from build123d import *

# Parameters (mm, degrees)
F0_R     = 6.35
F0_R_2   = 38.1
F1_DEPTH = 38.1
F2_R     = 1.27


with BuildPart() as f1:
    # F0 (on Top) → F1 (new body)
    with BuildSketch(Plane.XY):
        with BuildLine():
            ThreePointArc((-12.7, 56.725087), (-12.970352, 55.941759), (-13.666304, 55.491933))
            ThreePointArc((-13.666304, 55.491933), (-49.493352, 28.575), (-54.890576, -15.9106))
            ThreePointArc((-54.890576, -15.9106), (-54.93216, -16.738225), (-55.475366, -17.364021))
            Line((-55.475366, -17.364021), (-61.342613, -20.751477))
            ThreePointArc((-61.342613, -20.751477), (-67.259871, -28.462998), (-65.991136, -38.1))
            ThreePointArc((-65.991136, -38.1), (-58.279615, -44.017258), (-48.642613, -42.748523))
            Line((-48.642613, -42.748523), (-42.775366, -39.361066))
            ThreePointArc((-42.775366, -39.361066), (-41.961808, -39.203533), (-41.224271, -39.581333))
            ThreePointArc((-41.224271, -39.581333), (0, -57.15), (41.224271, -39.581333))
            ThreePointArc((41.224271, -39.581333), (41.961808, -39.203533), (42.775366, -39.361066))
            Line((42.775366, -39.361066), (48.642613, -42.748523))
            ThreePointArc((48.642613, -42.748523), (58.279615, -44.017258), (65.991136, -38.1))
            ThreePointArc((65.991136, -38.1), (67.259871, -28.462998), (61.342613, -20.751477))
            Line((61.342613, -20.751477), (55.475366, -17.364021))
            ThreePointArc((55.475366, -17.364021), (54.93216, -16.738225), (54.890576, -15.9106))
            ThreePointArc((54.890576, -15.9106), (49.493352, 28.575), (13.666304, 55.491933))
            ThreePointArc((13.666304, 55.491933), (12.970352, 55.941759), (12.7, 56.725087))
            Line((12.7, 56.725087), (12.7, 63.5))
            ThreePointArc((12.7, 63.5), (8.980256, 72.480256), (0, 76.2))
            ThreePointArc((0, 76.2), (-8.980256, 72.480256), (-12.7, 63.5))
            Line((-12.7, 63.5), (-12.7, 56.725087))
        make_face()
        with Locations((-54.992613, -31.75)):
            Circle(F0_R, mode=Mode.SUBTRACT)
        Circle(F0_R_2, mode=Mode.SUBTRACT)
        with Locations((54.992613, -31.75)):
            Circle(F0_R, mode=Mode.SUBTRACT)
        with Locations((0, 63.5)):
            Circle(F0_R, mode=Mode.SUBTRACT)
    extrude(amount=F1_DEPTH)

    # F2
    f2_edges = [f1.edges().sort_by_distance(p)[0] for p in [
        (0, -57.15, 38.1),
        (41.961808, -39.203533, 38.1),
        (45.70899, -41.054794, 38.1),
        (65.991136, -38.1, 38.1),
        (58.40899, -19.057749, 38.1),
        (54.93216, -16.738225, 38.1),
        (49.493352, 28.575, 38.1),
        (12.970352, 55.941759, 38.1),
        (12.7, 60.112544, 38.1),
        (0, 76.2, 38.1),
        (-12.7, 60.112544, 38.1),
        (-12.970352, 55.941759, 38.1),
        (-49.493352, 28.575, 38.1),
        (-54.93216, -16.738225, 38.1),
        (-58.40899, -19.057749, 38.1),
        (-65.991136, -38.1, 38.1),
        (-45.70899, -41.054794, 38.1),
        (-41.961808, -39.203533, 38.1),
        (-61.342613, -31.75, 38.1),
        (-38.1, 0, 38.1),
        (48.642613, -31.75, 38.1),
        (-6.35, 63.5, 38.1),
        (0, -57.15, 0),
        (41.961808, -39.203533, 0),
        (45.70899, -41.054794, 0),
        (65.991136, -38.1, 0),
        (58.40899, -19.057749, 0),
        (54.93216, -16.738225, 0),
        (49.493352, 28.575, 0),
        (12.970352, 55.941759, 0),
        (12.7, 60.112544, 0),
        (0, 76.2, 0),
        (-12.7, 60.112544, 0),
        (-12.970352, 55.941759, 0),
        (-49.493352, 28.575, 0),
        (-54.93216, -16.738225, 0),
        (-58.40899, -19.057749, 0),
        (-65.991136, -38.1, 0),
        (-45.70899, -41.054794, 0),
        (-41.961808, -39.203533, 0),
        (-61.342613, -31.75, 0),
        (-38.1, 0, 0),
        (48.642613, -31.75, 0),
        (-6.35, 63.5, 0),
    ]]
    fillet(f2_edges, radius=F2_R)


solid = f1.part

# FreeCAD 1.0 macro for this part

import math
import FreeCAD as App
import Part
import Sketcher

V = App.Vector
Q = App.Units.Quantity


def edges_at(feature, points):
    """Names of the edges that pass closest to the given points."""
    edges = feature.Shape.Edges
    near = lambda p: min(range(len(edges)), key=lambda i: edges[i].distToShape(Part.Vertex(*p))[0])
    return sorted({f"Edge{near(p) + 1}" for p in points})

doc = App.newDocument("Part")
params = doc.addObject("Spreadsheet::Sheet", "Params")
for row, (alias, value) in enumerate([
    ("sketch1_diameter", "3 in"),
    ("sketch1_diameter2", "0.5 in"),
    ("sketch1_radius", "0.5 in"),
    ("sketch1_radius2", "0.0500001 in"),
    ("sketch1_radius3", "2.25 in"),
    ("pad1_length", "1.5 in"),
    ("fillet_radius", "0.05 in"),
], start=1):
    params.set(f"A{row}", alias)
    params.set(f"B{row}", "=" + value)
    params.setAlias(f"B{row}", alias)

body = doc.addObject("PartDesign::Body", "Body")

sketch1 = body.newObject("Sketcher::SketchObject", "Sketch")
sketch1.AttachmentSupport = (doc.getObject("XY_Plane"), [""])
sketch1.MapMode = "FlatFace"
sketch1.addGeometry(Part.ArcOfCircle(Part.Circle(V(-14, 56.7, 0), V(0, 0, 1), 1.3), math.radians(-76), math.radians(0)), False)
sketch1.addGeometry(Part.ArcOfCircle(Part.Circle(V(0, 0, 0), V(0, 0, 1), 57.1), math.radians(104), math.radians(196)), False)
sketch1.addGeometry(Part.ArcOfCircle(Part.Circle(V(-56.1, -16.3, 0), V(0, 0, 1), 1.3), math.radians(-60), math.radians(16)), False)
sketch1.addGeometry(Part.LineSegment(V(-55.5, -17.4, 0), V(-61.3, -20.8, 0)), False)
sketch1.addGeometry(Part.ArcOfCircle(Part.Circle(V(-55, -31.8, 0), V(0, 0, 1), 12.7), math.radians(120), math.radians(210)), False)
sketch1.addGeometry(Part.ArcOfCircle(Part.Circle(V(-55, -31.7, 0), V(0, 0, 1), 12.7), math.radians(-150), math.radians(-60)), False)
sketch1.addGeometry(Part.LineSegment(V(-48.6, -42.7, 0), V(-42.8, -39.4, 0)), False)
sketch1.addGeometry(Part.ArcOfCircle(Part.Circle(V(-42.1, -40.5, 0), V(0, 0, 1), 1.3), math.radians(44), math.radians(120)), False)
sketch1.addGeometry(Part.ArcOfCircle(Part.Circle(V(0, 0, 0), V(0, 0, 1), 57.1), math.radians(-136), math.radians(-44)), False)
sketch1.addGeometry(Part.ArcOfCircle(Part.Circle(V(42.1, -40.5, 0), V(0, 0, 1), 1.3), math.radians(60), math.radians(136)), False)
sketch1.addGeometry(Part.LineSegment(V(42.8, -39.4, 0), V(48.6, -42.7, 0)), False)
sketch1.addGeometry(Part.ArcOfCircle(Part.Circle(V(55, -31.7, 0), V(0, 0, 1), 12.7), math.radians(-120), math.radians(-30)), False)
sketch1.addGeometry(Part.ArcOfCircle(Part.Circle(V(55, -31.8, 0), V(0, 0, 1), 12.7), math.radians(-30), math.radians(60)), False)
sketch1.addGeometry(Part.LineSegment(V(61.3, -20.8, 0), V(55.5, -17.4, 0)), False)
sketch1.addGeometry(Part.ArcOfCircle(Part.Circle(V(56.1, -16.3, 0), V(0, 0, 1), 1.3), math.radians(164), math.radians(240)), False)
sketch1.addGeometry(Part.ArcOfCircle(Part.Circle(V(0, 0, 0), V(0, 0, 1), 57.1), math.radians(-16), math.radians(76)), False)
sketch1.addGeometry(Part.ArcOfCircle(Part.Circle(V(14, 56.7, 0), V(0, 0, 1), 1.3), math.radians(-180), math.radians(-104)), False)
sketch1.addGeometry(Part.LineSegment(V(12.7, 56.7, 0), V(12.7, 63.5, 0)), False)
sketch1.addGeometry(Part.ArcOfCircle(Part.Circle(V(0, 63.5, 0), V(0, 0, 1), 12.7), math.radians(0), math.radians(90)), False)
sketch1.addGeometry(Part.ArcOfCircle(Part.Circle(V(0, 63.5, 0), V(0, 0, 1), 12.7), math.radians(90), math.radians(180)), False)
sketch1.addGeometry(Part.LineSegment(V(-12.7, 63.5, 0), V(-12.7, 56.7, 0)), False)
sketch1.addGeometry(Part.Circle(V(-55, -31.8, 0), V(0, 0, 1), 6.3), False)
sketch1.addGeometry(Part.Circle(V(0, 0, 0), V(0, 0, 1), 38.1), False)
sketch1.addGeometry(Part.Circle(V(55, -31.8, 0), V(0, 0, 1), 6.3), False)
sketch1.addGeometry(Part.Circle(V(0, 63.5, 0), V(0, 0, 1), 6.3), False)
sketch1.addConstraint(Sketcher.Constraint("Tangent", 0, 1, 1, 1))
sketch1.addConstraint(Sketcher.Constraint("Tangent", 1, 2, 2, 2))
sketch1.addConstraint(Sketcher.Constraint("Tangent", 2, 1, 3, 1))
sketch1.addConstraint(Sketcher.Constraint("Tangent", 3, 2, 4, 1))
sketch1.addConstraint(Sketcher.Constraint("Tangent", 4, 2, 5, 1))
sketch1.addConstraint(Sketcher.Constraint("Tangent", 5, 2, 6, 1))
sketch1.addConstraint(Sketcher.Constraint("Tangent", 6, 2, 7, 2))
sketch1.addConstraint(Sketcher.Constraint("Tangent", 7, 1, 8, 1))
sketch1.addConstraint(Sketcher.Constraint("Tangent", 8, 2, 9, 2))
sketch1.addConstraint(Sketcher.Constraint("Tangent", 9, 1, 10, 1))
sketch1.addConstraint(Sketcher.Constraint("Tangent", 10, 2, 11, 1))
sketch1.addConstraint(Sketcher.Constraint("Tangent", 11, 2, 12, 1))
sketch1.addConstraint(Sketcher.Constraint("Tangent", 12, 2, 13, 1))
sketch1.addConstraint(Sketcher.Constraint("Tangent", 13, 2, 14, 2))
sketch1.addConstraint(Sketcher.Constraint("Tangent", 14, 1, 15, 1))
sketch1.addConstraint(Sketcher.Constraint("Tangent", 15, 2, 16, 2))
sketch1.addConstraint(Sketcher.Constraint("Tangent", 16, 1, 17, 1))
sketch1.addConstraint(Sketcher.Constraint("Tangent", 17, 2, 18, 1))
sketch1.addConstraint(Sketcher.Constraint("Tangent", 18, 2, 19, 1))
sketch1.addConstraint(Sketcher.Constraint("Tangent", 19, 2, 20, 1))
sketch1.addConstraint(Sketcher.Constraint("Tangent", 20, 2, 0, 2))
sketch1.addConstraint(Sketcher.Constraint("Vertical", 17))
sketch1.addConstraint(Sketcher.Constraint("Vertical", 20))
sketch1.addConstraint(Sketcher.Constraint("Coincident", 1, 3, -1, 1))
sketch1.addConstraint(Sketcher.Constraint("Coincident", 8, 3, -1, 1))
sketch1.addConstraint(Sketcher.Constraint("Coincident", 15, 3, -1, 1))
sketch1.addConstraint(Sketcher.Constraint("Coincident", 22, 3, -1, 1))
sketch1.addConstraint(Sketcher.Constraint("Coincident", 21, 3, 4, 3))
sketch1.addConstraint(Sketcher.Constraint("Coincident", 23, 3, 11, 3))
sketch1.addConstraint(Sketcher.Constraint("Coincident", 24, 3, 18, 3))
sketch1.addConstraint(Sketcher.Constraint("Equal", 0, 2))
sketch1.addConstraint(Sketcher.Constraint("Equal", 4, 5))
sketch1.addConstraint(Sketcher.Constraint("Equal", 2, 7))
sketch1.addConstraint(Sketcher.Constraint("Equal", 1, 8))
sketch1.addConstraint(Sketcher.Constraint("Equal", 7, 9))
sketch1.addConstraint(Sketcher.Constraint("Equal", 5, 11))
sketch1.addConstraint(Sketcher.Constraint("Equal", 11, 12))
sketch1.addConstraint(Sketcher.Constraint("Equal", 9, 14))
sketch1.addConstraint(Sketcher.Constraint("Equal", 8, 15))
sketch1.addConstraint(Sketcher.Constraint("Equal", 14, 16))
sketch1.addConstraint(Sketcher.Constraint("Equal", 12, 18))
sketch1.addConstraint(Sketcher.Constraint("Equal", 18, 19))
sketch1.addConstraint(Sketcher.Constraint("Equal", 21, 23))
sketch1.addConstraint(Sketcher.Constraint("Equal", 23, 24))
sketch1.addConstraint(Sketcher.Constraint("Symmetric", 4, 3, 11, 3, -2))
sketch1.addConstraint(Sketcher.Constraint("PointOnObject", 18, 3, -2))
sketch1.addConstraint(Sketcher.Constraint("PointOnObject", 18, 2, -2))
sketch1.addConstraint(Sketcher.Constraint("Parallel", 3, 6))
sketch1.addConstraint(Sketcher.Constraint("Parallel", 10, 13))
sketch1.addConstraint(Sketcher.Constraint("Horizontal", 7, 3, 9, 3))
sketch1.addConstraint(Sketcher.Constraint("Horizontal", 4, 2, 11, 2))
sketch1.addConstraint(Sketcher.Constraint("Equal", 3, 6))
sketch1.addConstraint(Sketcher.Constraint("Diameter", 22, Q("3 in")))
sketch1.addConstraint(Sketcher.Constraint("Diameter", 21, Q("0.5 in")))
sketch1.addConstraint(Sketcher.Constraint("Radius", 4, Q("0.5 in")))
sketch1.addConstraint(Sketcher.Constraint("Radius", 0, Q("0.0500001 in")))
sketch1.addConstraint(Sketcher.Constraint("Radius", 1, Q("2.25 in")))
sketch1.addConstraint(Sketcher.Constraint("DistanceY", -1, 1, 18, 2, Q("3 in")))
sketch1.addConstraint(Sketcher.Constraint("Angle", 3, Q("-150.000005 deg")))
sketch1.addConstraint(Sketcher.Constraint("DistanceY", 4, 2, -1, 1, Q("1.5 in")))
sketch1.addConstraint(Sketcher.Constraint("DistanceY", 4, 3, -1, 1, Q("1.25 in")))
sketch1.setExpression("Constraints[52]", "Params.sketch1_diameter")
sketch1.setExpression("Constraints[53]", "Params.sketch1_diameter2")
sketch1.setExpression("Constraints[54]", "Params.sketch1_radius")
sketch1.setExpression("Constraints[55]", "Params.sketch1_radius2")
sketch1.setExpression("Constraints[56]", "Params.sketch1_radius3")
pad1 = body.newObject("PartDesign::Pad", "Pad")
pad1.Profile = sketch1
pad1.setExpression("Length", "Params.pad1_length")
doc.recompute()

fillet = body.newObject("PartDesign::Fillet", "Fillet")
fillet.Base = (pad1, edges_at(pad1, [
    (0, -57.15, 38.1),
    (41.962, -39.204, 38.1),
    (45.709, -41.055, 38.1),
    (65.991, -38.1, 19.05),
    (58.409, -19.058, 38.1),
    (54.932, -16.738, 38.1),
    (49.493, 28.575, 38.1),
    (12.97, 55.942, 38.1),
    (12.7, 60.113, 38.1),
    (0, 76.2, 19.05),
    (-12.7, 60.113, 38.1),
    (-12.97, 55.942, 38.1),
    (-49.493, 28.575, 38.1),
    (-54.932, -16.738, 38.1),
    (-58.409, -19.058, 38.1),
    (-65.991, -38.1, 19.05),
    (-45.709, -41.055, 38.1),
    (-41.962, -39.204, 38.1),
    (-61.343, -31.75, 38.1),
    (-38.1, 0, 38.1),
    (48.643, -31.75, 38.1),
    (-6.35, 63.5, 38.1),
    (0, -57.15, 0),
    (41.962, -39.204, 0),
    (45.709, -41.055, 0),
    (65.991, -38.1, 19.05),
    (58.409, -19.058, 0),
    (54.932, -16.738, 0),
    (49.493, 28.575, 0),
    (12.97, 55.942, 0),
    (12.7, 60.113, 0),
    (0, 76.2, 19.05),
    (-12.7, 60.113, 0),
    (-12.97, 55.942, 0),
    (-49.493, 28.575, 0),
    (-54.932, -16.738, 0),
    (-58.409, -19.058, 0),
    (-65.991, -38.1, 19.05),
    (-45.709, -41.055, 0),
    (-41.962, -39.204, 0),
    (-61.343, -31.75, 0),
    (-38.1, 0, 0),
    (48.643, -31.75, 0),
    (-6.35, 63.5, 0),
]))
fillet.setExpression("Radius", "Params.fillet_radius")

doc.recompute()
